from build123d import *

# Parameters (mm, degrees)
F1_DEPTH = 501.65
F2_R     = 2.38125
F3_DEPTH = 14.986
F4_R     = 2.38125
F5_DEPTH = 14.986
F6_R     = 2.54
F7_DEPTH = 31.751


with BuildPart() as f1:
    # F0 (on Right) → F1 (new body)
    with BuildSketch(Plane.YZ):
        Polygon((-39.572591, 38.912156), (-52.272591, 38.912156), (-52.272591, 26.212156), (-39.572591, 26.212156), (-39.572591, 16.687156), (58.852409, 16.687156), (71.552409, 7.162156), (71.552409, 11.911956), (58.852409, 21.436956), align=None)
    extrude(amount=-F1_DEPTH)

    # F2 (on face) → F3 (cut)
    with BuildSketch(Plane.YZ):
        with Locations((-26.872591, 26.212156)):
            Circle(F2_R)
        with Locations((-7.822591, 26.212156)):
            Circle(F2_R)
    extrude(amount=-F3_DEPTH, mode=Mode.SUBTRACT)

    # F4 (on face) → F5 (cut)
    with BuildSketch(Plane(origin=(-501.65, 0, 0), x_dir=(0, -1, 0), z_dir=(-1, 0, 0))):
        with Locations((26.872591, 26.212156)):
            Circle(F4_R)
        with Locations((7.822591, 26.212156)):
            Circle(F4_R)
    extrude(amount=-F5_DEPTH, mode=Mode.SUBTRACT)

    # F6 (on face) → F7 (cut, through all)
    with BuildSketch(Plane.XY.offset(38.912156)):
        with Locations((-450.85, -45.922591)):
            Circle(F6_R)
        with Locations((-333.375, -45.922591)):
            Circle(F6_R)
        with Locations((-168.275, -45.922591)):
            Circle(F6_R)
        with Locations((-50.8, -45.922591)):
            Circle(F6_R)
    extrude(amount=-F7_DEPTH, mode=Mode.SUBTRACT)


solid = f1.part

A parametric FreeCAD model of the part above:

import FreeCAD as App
import Part
import Sketcher
from FreeCAD import Vector
Q = App.Units.Quantity


def add_polygon(sketch, points):
    """Adds a closed chain of lines whose ends are joined by coincident constraints."""
    first, n = sketch.GeometryCount, len(points)
    for a, b in zip(points, points[1:] + points[:1]):
        sketch.addGeometry(Part.LineSegment(App.Vector(*a, 0), App.Vector(*b, 0)), False)
    for i in range(n):
        sketch.addConstraint(Sketcher.Constraint("Coincident", first + i, 2, first + (i + 1) % n, 1))

doc = App.newDocument("Part")
body = doc.addObject("PartDesign::Body", "Body")

sketch1 = body.newObject("Sketcher::SketchObject", "Sketch")
sketch1.AttachmentSupport = (doc.getObject("YZ_Plane"), [""])
sketch1.MapMode = "FlatFace"
add_polygon(sketch1, [(-39.6, 38.9), (-52.3, 38.9), (-52.3, 26.2), (-39.6, 26.2), (-39.6, 16.7), (58.9, 16.7), (71.6, 7.2), (71.6, 11.9), (58.9, 21.4)])
sketch1.addConstraint(Sketcher.Constraint("Horizontal", 0))
sketch1.addConstraint(Sketcher.Constraint("Vertical", 1))
sketch1.addConstraint(Sketcher.Constraint("Horizontal", 2))
sketch1.addConstraint(Sketcher.Constraint("Vertical", 3))
sketch1.addConstraint(Sketcher.Constraint("Horizontal", 4))
sketch1.addConstraint(Sketcher.Constraint("Vertical", 6))
sketch1.addConstraint(Sketcher.Constraint("Parallel", 5, 7))
sketch1.addConstraint(Sketcher.Constraint("Vertical", 4, 2, 7, 2))
sketch1.addConstraint(Sketcher.Constraint("Vertical", 3, 2, 8, 2))
sketch1.addConstraint(Sketcher.Constraint("Equal", 2, 1))
sketch1.addConstraint(Sketcher.Constraint("DistanceX", 0, 2, 0, 1, Q("0.5 in")))
sketch1.addConstraint(Sketcher.Constraint("DistanceX", 4, 2, 5, 2, Q("0.5 in")))
sketch1.addConstraint(Sketcher.Constraint("DistanceX", 4, 1, 4, 2, Q("3.875 in")))
sketch1.addConstraint(Sketcher.Constraint("DistanceY", 3, 2, 3, 1, Q("0.375 in")))
sketch1.addConstraint(Sketcher.Constraint("DistanceY", 6, 1, 6, 2, Q("0.187 in")))
sketch1.addConstraint(Sketcher.Constraint("DistanceY", 5, 2, 2, 2, Q("0.75 in")))
sketch1.addConstraint(Sketcher.Constraint("DistanceX", 0, 2, -1, 1, 52.272591))
sketch1.addConstraint(Sketcher.Constraint("DistanceY", -1, 1, 0, 2, 38.912156))
pad1 = body.newObject("PartDesign::Pad", "Pad")
pad1.Profile = sketch1
pad1.Length = Q("19.75 in")
pad1.Reversed = True

sketch2 = body.newObject("Sketcher::SketchObject", "Sketch001")
sketch2.AttachmentSupport = (doc.getObject("YZ_Plane"), [""])
sketch2.MapMode = "FlatFace"
sketch2.addGeometry(Part.Circle(Vector(-26.9, 26.2, 0), Vector(0, 0, 1), 2.4), False)
sketch2.addGeometry(Part.Circle(Vector(-7.8, 26.2, 0), Vector(0, 0, 1), 2.4), False)
sketch2.addConstraint(Sketcher.Constraint("Equal", 0, 1))
sketch2.addConstraint(Sketcher.Constraint("Horizontal", 0, 3, 1, 3))
sketch2.addConstraint(Sketcher.Constraint("Diameter", 0, Q("0.1875 in")))
sketch2.addConstraint(Sketcher.Constraint("DistanceX", 0, 3, 1, 3, Q("0.75 in")))
sketch2.addConstraint(Sketcher.Constraint("DistanceX", 0, 3, -1, 1, 26.872591))
sketch2.addConstraint(Sketcher.Constraint("DistanceY", -1, 1, 0, 3, 26.212156))
pocket1 = body.newObject("PartDesign::Pocket", "Pocket")
pocket1.Profile = sketch2
pocket1.Length = Q("0.59 in")

sketch3 = body.newObject("Sketcher::SketchObject", "Sketch002")
sketch3.AttachmentSupport = (doc.getObject("YZ_Plane"), [""])
sketch3.MapMode = "FlatFace"
sketch3.AttachmentOffset = App.Placement(Vector(0, 0, -19.75 * 25.4), App.Rotation())
sketch3.addGeometry(Part.Circle(Vector(-26.9, 26.2, 0), Vector(0, 0, 1), 2.4), False)
sketch3.addGeometry(Part.Circle(Vector(-7.8, 26.2, 0), Vector(0, 0, 1), 2.4), False)
sketch3.addConstraint(Sketcher.Constraint("Equal", 0, 1))
sketch3.addConstraint(Sketcher.Constraint("Horizontal", 0, 3, 1, 3))
sketch3.addConstraint(Sketcher.Constraint("Diameter", 0, Q("0.1875 in")))
sketch3.addConstraint(Sketcher.Constraint("DistanceX", 0, 3, 1, 3, Q("0.75 in")))
sketch3.addConstraint(Sketcher.Constraint("DistanceX", 0, 3, -1, 1, 26.872591))
sketch3.addConstraint(Sketcher.Constraint("DistanceY", -1, 1, 0, 3, 26.212156))
pocket2 = body.newObject("PartDesign::Pocket", "Pocket001")
pocket2.Profile = sketch3
pocket2.Length = Q("0.59 in")
pocket2.Reversed = True

sketch4 = body.newObject("Sketcher::SketchObject", "Sketch003")
sketch4.AttachmentSupport = (doc.getObject("XY_Plane"), [""])
sketch4.MapMode = "FlatFace"
sketch4.AttachmentOffset = App.Placement(Vector(0, 0, 38.912156), App.Rotation())
sketch4.addGeometry(Part.Circle(Vector(-450.9, -45.9, 0), Vector(0, 0, 1), 2.5), False)
sketch4.addGeometry(Part.Circle(Vector(-333.4, -45.9, 0), Vector(0, 0, 1), 2.5), False)
sketch4.addGeometry(Part.Circle(Vector(-168.3, -45.9, 0), Vector(0, 0, 1), 2.5), False)
sketch4.addGeometry(Part.Circle(Vector(-50.8, -45.9, 0), Vector(0, 0, 1), 2.5), False)
sketch4.addConstraint(Sketcher.Constraint("Equal", 0, 1))
sketch4.addConstraint(Sketcher.Constraint("Equal", 1, 2))
sketch4.addConstraint(Sketcher.Constraint("Equal", 2, 3))
sketch4.addConstraint(Sketcher.Constraint("Horizontal", 0, 3, 1, 3))
sketch4.addConstraint(Sketcher.Constraint("Horizontal", 1, 3, 2, 3))
sketch4.addConstraint(Sketcher.Constraint("Horizontal", 2, 3, 3, 3))
sketch4.addConstraint(Sketcher.Constraint("Diameter", 0, Q("0.2 in")))
sketch4.addConstraint(Sketcher.Constraint("DistanceX", 3, 3, -1, 1, Q("2 in")))
sketch4.addConstraint(Sketcher.Constraint("DistanceX", 1, 3, 2, 3, Q("6.5 in")))
sketch4.addConstraint(Sketcher.Constraint("DistanceX", 0, 3, -1, 1, Q("17.75 in")))
sketch4.addConstraint(Sketcher.Constraint("DistanceX", 1, 3, -1, 1, Q("13.125 in")))
sketch4.addConstraint(Sketcher.Constraint("DistanceY", 0, 3, -1, 1, 45.922591))
pocket3 = body.newObject("PartDesign::Pocket", "Pocket002")
pocket3.Profile = sketch4
pocket3.Type = "ThroughAll"

doc.recompute()
